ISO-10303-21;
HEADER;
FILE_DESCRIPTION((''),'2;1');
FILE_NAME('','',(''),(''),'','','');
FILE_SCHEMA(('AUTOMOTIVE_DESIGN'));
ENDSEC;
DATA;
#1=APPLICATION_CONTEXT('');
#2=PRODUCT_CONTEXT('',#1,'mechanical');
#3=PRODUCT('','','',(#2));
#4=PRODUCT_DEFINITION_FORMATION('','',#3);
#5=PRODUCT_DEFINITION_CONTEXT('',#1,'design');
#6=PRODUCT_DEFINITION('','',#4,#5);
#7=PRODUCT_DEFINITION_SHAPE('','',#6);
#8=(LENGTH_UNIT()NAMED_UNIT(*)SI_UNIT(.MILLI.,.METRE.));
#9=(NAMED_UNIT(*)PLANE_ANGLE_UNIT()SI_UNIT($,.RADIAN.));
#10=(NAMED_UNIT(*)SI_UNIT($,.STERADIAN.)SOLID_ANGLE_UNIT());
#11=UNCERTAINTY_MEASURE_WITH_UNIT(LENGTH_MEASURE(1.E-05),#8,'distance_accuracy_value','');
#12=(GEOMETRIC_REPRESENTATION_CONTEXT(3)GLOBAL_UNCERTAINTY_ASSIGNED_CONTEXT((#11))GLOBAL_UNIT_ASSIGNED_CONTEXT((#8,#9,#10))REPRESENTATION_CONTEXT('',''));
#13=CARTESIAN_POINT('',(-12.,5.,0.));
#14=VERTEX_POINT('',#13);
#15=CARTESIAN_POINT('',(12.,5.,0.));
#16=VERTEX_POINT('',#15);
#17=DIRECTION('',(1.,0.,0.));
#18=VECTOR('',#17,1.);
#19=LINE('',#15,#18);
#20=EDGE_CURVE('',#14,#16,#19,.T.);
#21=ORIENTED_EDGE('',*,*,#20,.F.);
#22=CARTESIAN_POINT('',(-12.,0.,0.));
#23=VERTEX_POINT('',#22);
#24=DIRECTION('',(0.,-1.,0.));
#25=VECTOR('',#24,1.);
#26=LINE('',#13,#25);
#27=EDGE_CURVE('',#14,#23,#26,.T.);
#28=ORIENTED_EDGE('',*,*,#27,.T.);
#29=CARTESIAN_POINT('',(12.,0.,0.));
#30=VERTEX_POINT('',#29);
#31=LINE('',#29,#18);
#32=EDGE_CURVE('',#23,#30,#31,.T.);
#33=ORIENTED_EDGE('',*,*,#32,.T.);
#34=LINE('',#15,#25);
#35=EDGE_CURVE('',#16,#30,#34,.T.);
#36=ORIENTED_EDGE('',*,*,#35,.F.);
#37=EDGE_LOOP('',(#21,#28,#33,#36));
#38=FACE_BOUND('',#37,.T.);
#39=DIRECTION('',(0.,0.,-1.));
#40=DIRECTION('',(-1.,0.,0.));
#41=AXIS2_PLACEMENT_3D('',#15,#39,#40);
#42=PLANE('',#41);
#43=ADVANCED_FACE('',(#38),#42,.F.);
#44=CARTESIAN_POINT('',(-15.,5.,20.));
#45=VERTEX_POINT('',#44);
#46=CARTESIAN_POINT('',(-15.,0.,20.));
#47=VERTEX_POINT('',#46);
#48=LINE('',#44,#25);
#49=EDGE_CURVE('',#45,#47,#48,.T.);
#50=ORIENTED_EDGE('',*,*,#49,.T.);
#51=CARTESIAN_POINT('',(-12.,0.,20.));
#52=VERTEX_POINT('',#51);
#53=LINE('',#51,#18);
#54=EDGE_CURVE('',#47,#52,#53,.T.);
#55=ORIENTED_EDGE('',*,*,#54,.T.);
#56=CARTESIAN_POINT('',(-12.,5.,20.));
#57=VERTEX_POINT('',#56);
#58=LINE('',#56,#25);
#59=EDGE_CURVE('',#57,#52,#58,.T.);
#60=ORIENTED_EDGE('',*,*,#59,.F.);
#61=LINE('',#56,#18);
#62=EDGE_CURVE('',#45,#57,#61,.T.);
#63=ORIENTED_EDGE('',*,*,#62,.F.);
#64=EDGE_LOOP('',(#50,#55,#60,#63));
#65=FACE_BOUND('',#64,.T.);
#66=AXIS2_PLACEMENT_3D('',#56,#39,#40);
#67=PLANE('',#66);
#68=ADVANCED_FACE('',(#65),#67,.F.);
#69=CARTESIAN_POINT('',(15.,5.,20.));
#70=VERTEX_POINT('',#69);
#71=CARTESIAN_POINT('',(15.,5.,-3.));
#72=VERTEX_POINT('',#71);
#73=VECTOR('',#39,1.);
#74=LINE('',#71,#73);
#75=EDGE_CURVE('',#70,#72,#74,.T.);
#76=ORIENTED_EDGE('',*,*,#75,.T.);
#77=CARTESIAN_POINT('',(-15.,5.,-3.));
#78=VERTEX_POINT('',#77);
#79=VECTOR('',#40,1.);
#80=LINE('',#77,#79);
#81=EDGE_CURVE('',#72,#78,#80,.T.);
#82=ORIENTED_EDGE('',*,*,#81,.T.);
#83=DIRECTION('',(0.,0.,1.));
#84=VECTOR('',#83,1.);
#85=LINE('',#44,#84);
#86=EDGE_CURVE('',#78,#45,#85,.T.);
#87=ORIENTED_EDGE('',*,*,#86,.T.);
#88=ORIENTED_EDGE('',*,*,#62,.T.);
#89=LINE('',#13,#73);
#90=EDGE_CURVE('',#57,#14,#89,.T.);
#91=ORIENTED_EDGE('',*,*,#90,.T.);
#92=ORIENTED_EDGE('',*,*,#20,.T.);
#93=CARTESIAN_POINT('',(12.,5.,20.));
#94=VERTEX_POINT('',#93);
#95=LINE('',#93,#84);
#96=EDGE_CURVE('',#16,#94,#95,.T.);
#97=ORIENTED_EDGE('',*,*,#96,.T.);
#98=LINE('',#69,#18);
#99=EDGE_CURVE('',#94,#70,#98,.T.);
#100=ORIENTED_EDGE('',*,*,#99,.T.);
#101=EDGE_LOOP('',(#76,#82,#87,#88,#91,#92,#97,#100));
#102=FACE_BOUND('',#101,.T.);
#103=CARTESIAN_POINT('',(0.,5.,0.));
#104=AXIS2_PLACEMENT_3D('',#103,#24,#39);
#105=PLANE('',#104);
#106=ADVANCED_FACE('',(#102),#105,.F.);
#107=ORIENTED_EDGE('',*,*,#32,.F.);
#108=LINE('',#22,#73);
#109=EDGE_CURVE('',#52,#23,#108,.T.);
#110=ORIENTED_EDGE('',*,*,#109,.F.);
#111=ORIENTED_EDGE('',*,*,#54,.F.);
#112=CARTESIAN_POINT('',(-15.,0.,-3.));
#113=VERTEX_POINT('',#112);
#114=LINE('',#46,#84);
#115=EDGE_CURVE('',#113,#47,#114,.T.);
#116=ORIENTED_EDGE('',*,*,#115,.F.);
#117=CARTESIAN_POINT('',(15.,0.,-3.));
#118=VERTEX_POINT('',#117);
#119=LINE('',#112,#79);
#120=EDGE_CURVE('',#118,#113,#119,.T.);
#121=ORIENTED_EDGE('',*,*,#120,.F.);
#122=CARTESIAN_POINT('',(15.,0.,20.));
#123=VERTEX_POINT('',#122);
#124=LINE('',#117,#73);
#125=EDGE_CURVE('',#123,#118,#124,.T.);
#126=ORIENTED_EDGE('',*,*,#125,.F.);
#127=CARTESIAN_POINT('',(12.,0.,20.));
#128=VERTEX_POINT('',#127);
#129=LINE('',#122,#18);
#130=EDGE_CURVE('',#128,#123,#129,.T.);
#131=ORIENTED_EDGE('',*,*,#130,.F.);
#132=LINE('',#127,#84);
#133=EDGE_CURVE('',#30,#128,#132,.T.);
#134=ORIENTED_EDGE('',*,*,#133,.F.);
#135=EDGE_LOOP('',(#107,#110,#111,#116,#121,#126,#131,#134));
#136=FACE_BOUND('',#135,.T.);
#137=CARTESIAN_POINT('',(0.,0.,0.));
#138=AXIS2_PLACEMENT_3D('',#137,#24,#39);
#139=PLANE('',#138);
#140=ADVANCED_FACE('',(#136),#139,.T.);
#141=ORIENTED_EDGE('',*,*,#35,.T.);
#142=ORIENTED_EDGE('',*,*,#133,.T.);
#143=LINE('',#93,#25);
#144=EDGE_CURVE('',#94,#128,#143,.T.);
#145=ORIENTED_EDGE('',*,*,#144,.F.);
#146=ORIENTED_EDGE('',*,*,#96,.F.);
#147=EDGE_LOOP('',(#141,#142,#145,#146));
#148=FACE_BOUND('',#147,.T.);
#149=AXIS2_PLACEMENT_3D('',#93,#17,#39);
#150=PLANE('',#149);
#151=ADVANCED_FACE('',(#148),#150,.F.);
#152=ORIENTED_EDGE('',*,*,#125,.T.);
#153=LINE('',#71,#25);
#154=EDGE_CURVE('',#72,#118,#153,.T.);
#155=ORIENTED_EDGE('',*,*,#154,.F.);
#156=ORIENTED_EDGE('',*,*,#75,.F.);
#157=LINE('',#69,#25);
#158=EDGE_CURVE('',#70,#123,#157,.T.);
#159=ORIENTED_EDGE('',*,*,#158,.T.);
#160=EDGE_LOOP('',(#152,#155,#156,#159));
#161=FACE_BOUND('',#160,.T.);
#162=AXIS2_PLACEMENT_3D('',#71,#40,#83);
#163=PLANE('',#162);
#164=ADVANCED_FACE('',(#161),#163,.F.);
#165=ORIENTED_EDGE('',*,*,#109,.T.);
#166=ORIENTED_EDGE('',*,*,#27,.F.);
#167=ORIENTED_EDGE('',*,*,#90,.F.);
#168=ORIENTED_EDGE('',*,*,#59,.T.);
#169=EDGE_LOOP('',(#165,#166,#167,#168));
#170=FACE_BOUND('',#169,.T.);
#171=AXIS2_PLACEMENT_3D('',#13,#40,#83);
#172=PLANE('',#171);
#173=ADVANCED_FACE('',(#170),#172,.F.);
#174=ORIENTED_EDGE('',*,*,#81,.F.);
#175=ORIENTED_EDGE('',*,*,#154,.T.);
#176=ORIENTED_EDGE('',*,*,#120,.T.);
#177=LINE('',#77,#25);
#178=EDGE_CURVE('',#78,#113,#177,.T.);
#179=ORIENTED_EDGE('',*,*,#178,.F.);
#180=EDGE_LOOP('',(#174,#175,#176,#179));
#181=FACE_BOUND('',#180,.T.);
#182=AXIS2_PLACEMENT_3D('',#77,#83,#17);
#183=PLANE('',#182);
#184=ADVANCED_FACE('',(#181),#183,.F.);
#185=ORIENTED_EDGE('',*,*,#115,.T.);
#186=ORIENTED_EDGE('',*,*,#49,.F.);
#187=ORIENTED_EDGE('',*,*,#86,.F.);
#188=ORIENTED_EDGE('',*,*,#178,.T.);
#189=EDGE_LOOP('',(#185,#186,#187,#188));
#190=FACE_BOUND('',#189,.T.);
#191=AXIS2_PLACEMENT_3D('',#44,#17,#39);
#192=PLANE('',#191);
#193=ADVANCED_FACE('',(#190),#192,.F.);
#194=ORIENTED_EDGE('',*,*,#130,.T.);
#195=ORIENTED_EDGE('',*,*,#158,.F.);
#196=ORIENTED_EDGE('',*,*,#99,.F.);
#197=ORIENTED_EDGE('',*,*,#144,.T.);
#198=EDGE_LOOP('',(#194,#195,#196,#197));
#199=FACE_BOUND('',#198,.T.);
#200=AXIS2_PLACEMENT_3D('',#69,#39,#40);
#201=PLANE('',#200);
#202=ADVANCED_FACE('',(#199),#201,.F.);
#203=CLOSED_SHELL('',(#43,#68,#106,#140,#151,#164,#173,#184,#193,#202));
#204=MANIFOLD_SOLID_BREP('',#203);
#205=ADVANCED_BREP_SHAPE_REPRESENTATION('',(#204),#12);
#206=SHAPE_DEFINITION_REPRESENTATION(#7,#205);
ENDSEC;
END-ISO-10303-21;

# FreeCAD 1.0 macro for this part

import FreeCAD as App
import Part
import Sketcher
Q = App.Units.Quantity

doc = App.newDocument("Part")
params = doc.addObject("Spreadsheet::Sheet", "Params")
for row, (alias, value) in enumerate([
    ("sketch1_width", "30 mm"),
    ("sketch1_width2", "3 mm"),
    ("sketch1_height", "23 mm"),
    ("sketch1_height2", "20 mm"),
    ("pad1_length", "5 mm"),
], start=1):
    params.set(f"A{row}", alias)
    params.set(f"B{row}", "=" + value)
    params.setAlias(f"B{row}", alias)

body = doc.addObject("PartDesign::Body", "Body")

sketch1 = doc.addObject("Sketcher::SketchObject", "Sketch")
body.addObject(sketch1)
sketch1.AttachmentSupport = (doc.XZ_Plane, [""])
sketch1.MapMode = "FlatFace"
sketch1.addGeometry(Part.LineSegment(App.Vector(15, -3, 0), App.Vector(-15, -3, 0)), False)
sketch1.addGeometry(Part.LineSegment(App.Vector(-15, -3, 0), App.Vector(-15, 20, 0)), False)
sketch1.addGeometry(Part.LineSegment(App.Vector(-15, 20, 0), App.Vector(-12, 20, 0)), False)
sketch1.addGeometry(Part.LineSegment(App.Vector(-12, 20, 0), App.Vector(-12, 0, 0)), False)
sketch1.addGeometry(Part.LineSegment(App.Vector(-12, 0, 0), App.Vector(12, 0, 0)), False)
sketch1.addGeometry(Part.LineSegment(App.Vector(12, 0, 0), App.Vector(12, 20, 0)), False)
sketch1.addGeometry(Part.LineSegment(App.Vector(12, 20, 0), App.Vector(15, 20, 0)), False)
sketch1.addGeometry(Part.LineSegment(App.Vector(15, 20, 0), App.Vector(15, -3, 0)), False)
sketch1.addConstraint(Sketcher.Constraint("Coincident", 0, 2, 1, 1))
sketch1.addConstraint(Sketcher.Constraint("Coincident", 1, 2, 2, 1))
sketch1.addConstraint(Sketcher.Constraint("Coincident", 2, 2, 3, 1))
sketch1.addConstraint(Sketcher.Constraint("Coincident", 3, 2, 4, 1))
sketch1.addConstraint(Sketcher.Constraint("Coincident", 4, 2, 5, 1))
sketch1.addConstraint(Sketcher.Constraint("Coincident", 5, 2, 6, 1))
sketch1.addConstraint(Sketcher.Constraint("Coincident", 6, 2, 7, 1))
sketch1.addConstraint(Sketcher.Constraint("Coincident", 7, 2, 0, 1))
sketch1.addConstraint(Sketcher.Constraint("Horizontal", 0))
sketch1.addConstraint(Sketcher.Constraint("Vertical", 1))
sketch1.addConstraint(Sketcher.Constraint("Horizontal", 2))
sketch1.addConstraint(Sketcher.Constraint("Vertical", 3))
sketch1.addConstraint(Sketcher.Constraint("Horizontal", 4))
sketch1.addConstraint(Sketcher.Constraint("Vertical", 5))
sketch1.addConstraint(Sketcher.Constraint("Horizontal", 6))
sketch1.addConstraint(Sketcher.Constraint("Vertical", 7))
sketch1.addConstraint(Sketcher.Constraint("Symmetric", 3, 2, 4, 2, -1, 1))
sketch1.addConstraint(Sketcher.Constraint("Symmetric", 1, 2, 6, 2, -2))
sketch1.addConstraint(Sketcher.Constraint("DistanceX", 0, 2, 0, 1, Q("30 mm")))
sketch1.addConstraint(Sketcher.Constraint("DistanceX", 2, 1, 2, 2, Q("3 mm")))
sketch1.addConstraint(Sketcher.Constraint("DistanceY", 1, 1, 1, 2, Q("23 mm")))
sketch1.addConstraint(Sketcher.Constraint("DistanceY", 3, 2, 3, 1, Q("20 mm")))
sketch1.setExpression("Constraints[18]", "Params.sketch1_width")
sketch1.setExpression("Constraints[19]", "Params.sketch1_width2")
sketch1.setExpression("Constraints[20]", "Params.sketch1_height")
sketch1.setExpression("Constraints[21]", "Params.sketch1_height2")
pad1 = doc.addObject("PartDesign::Pad", "Pad")
body.addObject(pad1)
pad1.Profile = sketch1
pad1.setExpression("Length", "Params.pad1_length")
pad1.Reversed = True

doc.recompute()
